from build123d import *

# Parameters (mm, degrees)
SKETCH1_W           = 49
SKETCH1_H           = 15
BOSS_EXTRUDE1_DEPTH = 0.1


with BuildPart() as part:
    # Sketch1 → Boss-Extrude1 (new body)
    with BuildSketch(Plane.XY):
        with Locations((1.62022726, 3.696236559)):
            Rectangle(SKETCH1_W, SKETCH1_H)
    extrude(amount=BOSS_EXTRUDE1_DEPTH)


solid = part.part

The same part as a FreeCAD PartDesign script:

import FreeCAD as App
import Part
import Sketcher


def add_polygon(sketch, points):
    """Adds a closed chain of lines whose ends are joined by coincident constraints."""
    first, n = sketch.GeometryCount, len(points)
    for a, b in zip(points, points[1:] + points[:1]):
        sketch.addGeometry(Part.LineSegment(App.Vector(*a, 0), App.Vector(*b, 0)), False)
    for i in range(n):
        sketch.addConstraint(Sketcher.Constraint("Coincident", first + i, 2, first + (i + 1) % n, 1))

doc = App.newDocument("Part")
body = doc.addObject("PartDesign::Body", "Body")

# Sketch on XY plane
sketch1 = doc.addObject("Sketcher::SketchObject", "Sketch")
body.addObject(sketch1)
sketch1.AttachmentSupport = (doc.XY_Plane, [""])
sketch1.MapMode = "FlatFace"
add_polygon(sketch1, [(-23, 11), (-23, -4), (26, -4), (26, 11)])  # lines 0-3
sketch1.addConstraint([
    Sketcher.Constraint("Vertical", 0),
    Sketcher.Constraint("Horizontal", 1),
    Sketcher.Constraint("Vertical", 2),
    Sketcher.Constraint("Horizontal", 3),
    Sketcher.Constraint("DistanceX", 1, 1, 1, 2, 49.0),
    Sketcher.Constraint("DistanceY", 0, 2, 0, 1, 15.0),
    Sketcher.Constraint("DistanceX", 0, 2, -1, 1, 22.879773),
    Sketcher.Constraint("DistanceY", 0, 2, -1, 1, 3.803763),
])
pad1 = doc.addObject("PartDesign::Pad", "Pad")
body.addObject(pad1)
pad1.Profile = sketch1
pad1.Length = 0.1

doc.recompute()
